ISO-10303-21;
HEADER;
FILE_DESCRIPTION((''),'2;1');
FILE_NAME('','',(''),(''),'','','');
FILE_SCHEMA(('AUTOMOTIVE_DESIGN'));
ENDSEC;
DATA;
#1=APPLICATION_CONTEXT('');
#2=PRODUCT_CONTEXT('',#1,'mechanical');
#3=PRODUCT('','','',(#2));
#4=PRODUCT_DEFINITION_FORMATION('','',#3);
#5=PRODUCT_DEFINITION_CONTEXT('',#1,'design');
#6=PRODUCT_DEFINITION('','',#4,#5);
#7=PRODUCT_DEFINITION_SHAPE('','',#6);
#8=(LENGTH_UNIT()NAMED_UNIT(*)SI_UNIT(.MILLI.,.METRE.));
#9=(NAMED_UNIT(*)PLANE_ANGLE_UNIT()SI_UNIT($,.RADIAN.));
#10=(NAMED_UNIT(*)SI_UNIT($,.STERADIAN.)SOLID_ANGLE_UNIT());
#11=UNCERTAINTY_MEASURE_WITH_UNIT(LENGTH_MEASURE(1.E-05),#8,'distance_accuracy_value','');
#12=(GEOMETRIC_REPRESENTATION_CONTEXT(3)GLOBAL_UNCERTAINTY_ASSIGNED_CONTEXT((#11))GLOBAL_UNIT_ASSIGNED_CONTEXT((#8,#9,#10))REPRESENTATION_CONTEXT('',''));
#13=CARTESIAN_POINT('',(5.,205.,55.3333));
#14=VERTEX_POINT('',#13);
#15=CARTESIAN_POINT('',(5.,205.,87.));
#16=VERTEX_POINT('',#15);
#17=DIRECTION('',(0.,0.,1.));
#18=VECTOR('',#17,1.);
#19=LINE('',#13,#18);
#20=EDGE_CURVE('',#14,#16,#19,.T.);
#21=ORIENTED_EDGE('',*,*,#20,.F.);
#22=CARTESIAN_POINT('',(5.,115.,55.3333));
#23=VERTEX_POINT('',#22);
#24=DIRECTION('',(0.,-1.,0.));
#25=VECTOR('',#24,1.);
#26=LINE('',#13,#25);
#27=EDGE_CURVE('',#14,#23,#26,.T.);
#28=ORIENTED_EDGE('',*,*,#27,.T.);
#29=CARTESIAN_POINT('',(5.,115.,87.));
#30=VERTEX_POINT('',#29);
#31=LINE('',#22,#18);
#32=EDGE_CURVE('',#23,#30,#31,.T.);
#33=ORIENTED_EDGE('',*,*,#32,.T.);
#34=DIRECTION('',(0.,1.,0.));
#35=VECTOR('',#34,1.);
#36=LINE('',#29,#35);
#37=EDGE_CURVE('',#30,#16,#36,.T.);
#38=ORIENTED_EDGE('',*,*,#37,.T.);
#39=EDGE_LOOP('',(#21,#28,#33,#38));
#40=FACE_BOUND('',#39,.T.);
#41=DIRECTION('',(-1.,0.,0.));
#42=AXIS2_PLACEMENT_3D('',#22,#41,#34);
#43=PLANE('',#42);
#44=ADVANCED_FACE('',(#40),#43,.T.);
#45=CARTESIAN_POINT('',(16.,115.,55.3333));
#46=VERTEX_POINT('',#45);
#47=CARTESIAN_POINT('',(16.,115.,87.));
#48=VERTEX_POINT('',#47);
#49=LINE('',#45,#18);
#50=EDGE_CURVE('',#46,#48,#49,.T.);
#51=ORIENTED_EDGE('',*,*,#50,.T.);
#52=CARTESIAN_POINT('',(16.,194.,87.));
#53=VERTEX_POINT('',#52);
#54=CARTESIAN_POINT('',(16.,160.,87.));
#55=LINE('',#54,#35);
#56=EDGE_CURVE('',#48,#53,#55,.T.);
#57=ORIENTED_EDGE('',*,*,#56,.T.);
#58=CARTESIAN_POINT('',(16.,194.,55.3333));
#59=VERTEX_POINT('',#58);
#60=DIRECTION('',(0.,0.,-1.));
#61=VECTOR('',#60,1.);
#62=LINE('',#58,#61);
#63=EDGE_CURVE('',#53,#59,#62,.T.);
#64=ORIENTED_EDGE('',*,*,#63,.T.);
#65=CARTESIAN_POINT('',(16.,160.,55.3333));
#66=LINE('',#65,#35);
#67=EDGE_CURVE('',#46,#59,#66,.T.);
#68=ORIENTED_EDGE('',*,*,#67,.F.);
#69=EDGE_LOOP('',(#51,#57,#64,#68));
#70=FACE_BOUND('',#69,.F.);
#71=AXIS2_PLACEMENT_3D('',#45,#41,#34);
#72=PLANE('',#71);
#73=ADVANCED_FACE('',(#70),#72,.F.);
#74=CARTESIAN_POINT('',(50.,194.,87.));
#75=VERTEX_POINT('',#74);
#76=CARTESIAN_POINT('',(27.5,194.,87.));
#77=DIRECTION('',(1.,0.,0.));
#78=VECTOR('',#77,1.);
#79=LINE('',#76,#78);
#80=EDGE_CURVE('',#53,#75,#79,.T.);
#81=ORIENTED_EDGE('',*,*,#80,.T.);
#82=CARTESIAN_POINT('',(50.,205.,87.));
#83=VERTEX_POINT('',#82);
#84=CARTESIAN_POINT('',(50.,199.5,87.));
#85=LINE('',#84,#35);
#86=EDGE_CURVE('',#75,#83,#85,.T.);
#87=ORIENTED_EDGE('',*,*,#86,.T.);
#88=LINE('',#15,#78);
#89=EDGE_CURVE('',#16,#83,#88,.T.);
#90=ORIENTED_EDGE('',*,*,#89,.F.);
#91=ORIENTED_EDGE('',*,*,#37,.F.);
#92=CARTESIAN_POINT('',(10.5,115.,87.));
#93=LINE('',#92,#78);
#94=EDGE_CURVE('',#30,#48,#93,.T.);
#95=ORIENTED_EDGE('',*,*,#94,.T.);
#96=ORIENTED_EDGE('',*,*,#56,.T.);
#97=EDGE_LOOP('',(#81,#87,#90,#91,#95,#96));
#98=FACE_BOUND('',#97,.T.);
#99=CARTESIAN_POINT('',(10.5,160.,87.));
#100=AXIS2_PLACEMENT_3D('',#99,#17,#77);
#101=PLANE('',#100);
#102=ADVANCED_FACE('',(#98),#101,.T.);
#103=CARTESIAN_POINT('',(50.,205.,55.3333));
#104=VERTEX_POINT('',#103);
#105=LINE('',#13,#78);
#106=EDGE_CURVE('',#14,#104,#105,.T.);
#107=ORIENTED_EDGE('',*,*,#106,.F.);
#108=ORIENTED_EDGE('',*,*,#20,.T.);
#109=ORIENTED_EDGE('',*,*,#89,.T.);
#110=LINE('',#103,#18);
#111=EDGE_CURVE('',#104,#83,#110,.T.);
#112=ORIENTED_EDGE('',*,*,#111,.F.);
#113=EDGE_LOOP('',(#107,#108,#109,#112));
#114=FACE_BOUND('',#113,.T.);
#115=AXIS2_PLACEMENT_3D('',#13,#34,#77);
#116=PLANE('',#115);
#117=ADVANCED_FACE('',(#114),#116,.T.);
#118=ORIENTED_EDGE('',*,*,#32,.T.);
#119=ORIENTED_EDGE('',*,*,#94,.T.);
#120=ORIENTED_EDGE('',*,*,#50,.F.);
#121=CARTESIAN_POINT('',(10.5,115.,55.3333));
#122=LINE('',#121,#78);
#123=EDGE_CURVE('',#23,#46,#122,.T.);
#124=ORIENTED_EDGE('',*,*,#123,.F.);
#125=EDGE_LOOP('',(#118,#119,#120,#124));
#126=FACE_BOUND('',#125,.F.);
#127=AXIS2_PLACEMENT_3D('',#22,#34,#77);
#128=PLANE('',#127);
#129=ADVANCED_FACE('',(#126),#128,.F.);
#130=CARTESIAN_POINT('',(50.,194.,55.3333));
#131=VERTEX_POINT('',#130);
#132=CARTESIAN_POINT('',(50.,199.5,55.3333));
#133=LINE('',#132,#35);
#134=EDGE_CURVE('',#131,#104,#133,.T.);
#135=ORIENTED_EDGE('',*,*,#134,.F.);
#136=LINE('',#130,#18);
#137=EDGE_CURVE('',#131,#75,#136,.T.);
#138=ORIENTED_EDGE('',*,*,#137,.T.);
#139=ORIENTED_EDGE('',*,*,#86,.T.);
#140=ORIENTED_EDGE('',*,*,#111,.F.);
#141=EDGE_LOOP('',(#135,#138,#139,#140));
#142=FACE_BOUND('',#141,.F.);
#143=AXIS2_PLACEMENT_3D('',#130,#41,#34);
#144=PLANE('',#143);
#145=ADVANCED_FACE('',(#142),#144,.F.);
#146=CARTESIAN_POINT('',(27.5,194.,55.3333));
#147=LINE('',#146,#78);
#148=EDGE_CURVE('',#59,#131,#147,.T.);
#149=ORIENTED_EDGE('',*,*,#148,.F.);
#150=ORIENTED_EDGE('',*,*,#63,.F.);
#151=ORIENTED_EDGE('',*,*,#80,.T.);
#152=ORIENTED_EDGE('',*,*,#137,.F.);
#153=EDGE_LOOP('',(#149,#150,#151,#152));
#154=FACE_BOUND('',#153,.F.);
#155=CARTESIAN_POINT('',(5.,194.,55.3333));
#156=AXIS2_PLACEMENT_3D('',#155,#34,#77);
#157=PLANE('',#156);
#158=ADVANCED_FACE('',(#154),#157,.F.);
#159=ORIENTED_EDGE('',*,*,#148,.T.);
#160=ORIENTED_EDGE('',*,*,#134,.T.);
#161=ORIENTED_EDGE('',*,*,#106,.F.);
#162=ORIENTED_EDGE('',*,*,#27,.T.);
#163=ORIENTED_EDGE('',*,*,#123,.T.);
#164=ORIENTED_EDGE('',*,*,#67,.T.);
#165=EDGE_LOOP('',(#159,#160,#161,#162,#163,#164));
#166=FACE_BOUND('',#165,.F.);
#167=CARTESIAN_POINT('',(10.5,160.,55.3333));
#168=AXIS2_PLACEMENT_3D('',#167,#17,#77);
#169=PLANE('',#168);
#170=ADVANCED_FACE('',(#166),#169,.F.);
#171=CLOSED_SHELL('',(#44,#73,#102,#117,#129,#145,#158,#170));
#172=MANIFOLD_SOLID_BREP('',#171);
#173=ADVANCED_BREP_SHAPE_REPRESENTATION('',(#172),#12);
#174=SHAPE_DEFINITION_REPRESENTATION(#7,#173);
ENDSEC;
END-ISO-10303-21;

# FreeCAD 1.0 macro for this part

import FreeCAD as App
import Part
import Sketcher

V = App.Vector
Q = App.Units.Quantity

doc = App.newDocument("Part")
params = doc.addObject("Spreadsheet::Sheet", "Params")
for row, (alias, value) in enumerate([
    ("sketch1_width", "45 mm"),
    ("sketch1_height", "11 mm"),
    ("pad1_length", "31.6667 mm"),
    ("sketch2_width", "11 mm"),
    ("sketch2_height", "90 mm"),
    ("pad2_length", "31.6667 mm"),
], start=1):
    params.set(f"A{row}", alias)
    params.set(f"B{row}", "=" + value)
    params.setAlias(f"B{row}", alias)

body = doc.addObject("PartDesign::Body", "Body")

# Sketch on XY plane
sketch1 = body.newObject("Sketcher::SketchObject", "Sketch")
sketch1.AttachmentSupport = (doc.getObject("XY_Plane"), [""])
sketch1.MapMode = "FlatFace"
sketch1.AttachmentOffset = App.Placement(V(0, 0, 55.3333), App.Rotation())
sketch1.addGeometry([
    Part.LineSegment(V(5, 205, 0), V(5, 194, 0)),
    Part.LineSegment(V(5, 194, 0), V(50, 194, 0)),
    Part.LineSegment(V(50, 194, 0), V(50, 205, 0)),
    Part.LineSegment(V(50, 205, 0), V(5, 205, 0)),
], False)
sketch1.addConstraint([
    Sketcher.Constraint("Coincident", 0, 2, 1, 1),
    Sketcher.Constraint("Coincident", 1, 2, 2, 1),
    Sketcher.Constraint("Coincident", 2, 2, 3, 1),
    Sketcher.Constraint("Coincident", 3, 2, 0, 1),
    Sketcher.Constraint("Vertical", 0),
    Sketcher.Constraint("Horizontal", 1),
    Sketcher.Constraint("Vertical", 2),
    Sketcher.Constraint("Horizontal", 3),
    Sketcher.Constraint("DistanceX", 1, 1, 1, 2, Q("45 mm")),
    Sketcher.Constraint("DistanceY", 0, 2, 0, 1, Q("11 mm")),
    Sketcher.Constraint("DistanceX", -1, 1, 0, 2, Q("5 mm")),
    Sketcher.Constraint("DistanceY", -1, 1, 0, 2, Q("194 mm")),
])
sketch1.setExpression("Constraints[8]", "Params.sketch1_width")
sketch1.setExpression("Constraints[9]", "Params.sketch1_height")
pad1 = body.newObject("PartDesign::Pad", "Pad")
pad1.Profile = sketch1
pad1.setExpression("Length", "Params.pad1_length")
body2 = doc.addObject("PartDesign::Body", "Body001")

# Sketch on XY plane
sketch2 = body2.newObject("Sketcher::SketchObject", "Sketch001")
sketch2.AttachmentSupport = (doc.getObject("XY_Plane001"), [""])
sketch2.MapMode = "FlatFace"
sketch2.AttachmentOffset = App.Placement(V(0, 0, 55.3333), App.Rotation())
sketch2.addGeometry([
    Part.LineSegment(V(5, 205, 0), V(5, 115, 0)),
    Part.LineSegment(V(5, 115, 0), V(16, 115, 0)),
    Part.LineSegment(V(16, 115, 0), V(16, 205, 0)),
    Part.LineSegment(V(16, 205, 0), V(5, 205, 0)),
], False)
sketch2.addConstraint([
    Sketcher.Constraint("Coincident", 0, 2, 1, 1),
    Sketcher.Constraint("Coincident", 1, 2, 2, 1),
    Sketcher.Constraint("Coincident", 2, 2, 3, 1),
    Sketcher.Constraint("Coincident", 3, 2, 0, 1),
    Sketcher.Constraint("Vertical", 0),
    Sketcher.Constraint("Horizontal", 1),
    Sketcher.Constraint("Vertical", 2),
    Sketcher.Constraint("Horizontal", 3),
    Sketcher.Constraint("DistanceX", 1, 1, 1, 2, Q("11 mm")),
    Sketcher.Constraint("DistanceY", 0, 2, 0, 1, Q("90 mm")),
    Sketcher.Constraint("DistanceX", -1, 1, 0, 2, Q("5 mm")),
    Sketcher.Constraint("DistanceY", -1, 1, 0, 2, Q("115 mm")),
])
sketch2.setExpression("Constraints[8]", "Params.sketch2_width")
sketch2.setExpression("Constraints[9]", "Params.sketch2_height")
pad2 = body2.newObject("PartDesign::Pad", "Pad001")
pad2.Profile = sketch2
pad2.setExpression("Length", "Params.pad2_length")
doc.recompute()

boolean = body2.newObject("PartDesign::Boolean", "Boolean")
boolean.Type = "Fuse"
boolean.addObjects([body])

doc.recompute()
